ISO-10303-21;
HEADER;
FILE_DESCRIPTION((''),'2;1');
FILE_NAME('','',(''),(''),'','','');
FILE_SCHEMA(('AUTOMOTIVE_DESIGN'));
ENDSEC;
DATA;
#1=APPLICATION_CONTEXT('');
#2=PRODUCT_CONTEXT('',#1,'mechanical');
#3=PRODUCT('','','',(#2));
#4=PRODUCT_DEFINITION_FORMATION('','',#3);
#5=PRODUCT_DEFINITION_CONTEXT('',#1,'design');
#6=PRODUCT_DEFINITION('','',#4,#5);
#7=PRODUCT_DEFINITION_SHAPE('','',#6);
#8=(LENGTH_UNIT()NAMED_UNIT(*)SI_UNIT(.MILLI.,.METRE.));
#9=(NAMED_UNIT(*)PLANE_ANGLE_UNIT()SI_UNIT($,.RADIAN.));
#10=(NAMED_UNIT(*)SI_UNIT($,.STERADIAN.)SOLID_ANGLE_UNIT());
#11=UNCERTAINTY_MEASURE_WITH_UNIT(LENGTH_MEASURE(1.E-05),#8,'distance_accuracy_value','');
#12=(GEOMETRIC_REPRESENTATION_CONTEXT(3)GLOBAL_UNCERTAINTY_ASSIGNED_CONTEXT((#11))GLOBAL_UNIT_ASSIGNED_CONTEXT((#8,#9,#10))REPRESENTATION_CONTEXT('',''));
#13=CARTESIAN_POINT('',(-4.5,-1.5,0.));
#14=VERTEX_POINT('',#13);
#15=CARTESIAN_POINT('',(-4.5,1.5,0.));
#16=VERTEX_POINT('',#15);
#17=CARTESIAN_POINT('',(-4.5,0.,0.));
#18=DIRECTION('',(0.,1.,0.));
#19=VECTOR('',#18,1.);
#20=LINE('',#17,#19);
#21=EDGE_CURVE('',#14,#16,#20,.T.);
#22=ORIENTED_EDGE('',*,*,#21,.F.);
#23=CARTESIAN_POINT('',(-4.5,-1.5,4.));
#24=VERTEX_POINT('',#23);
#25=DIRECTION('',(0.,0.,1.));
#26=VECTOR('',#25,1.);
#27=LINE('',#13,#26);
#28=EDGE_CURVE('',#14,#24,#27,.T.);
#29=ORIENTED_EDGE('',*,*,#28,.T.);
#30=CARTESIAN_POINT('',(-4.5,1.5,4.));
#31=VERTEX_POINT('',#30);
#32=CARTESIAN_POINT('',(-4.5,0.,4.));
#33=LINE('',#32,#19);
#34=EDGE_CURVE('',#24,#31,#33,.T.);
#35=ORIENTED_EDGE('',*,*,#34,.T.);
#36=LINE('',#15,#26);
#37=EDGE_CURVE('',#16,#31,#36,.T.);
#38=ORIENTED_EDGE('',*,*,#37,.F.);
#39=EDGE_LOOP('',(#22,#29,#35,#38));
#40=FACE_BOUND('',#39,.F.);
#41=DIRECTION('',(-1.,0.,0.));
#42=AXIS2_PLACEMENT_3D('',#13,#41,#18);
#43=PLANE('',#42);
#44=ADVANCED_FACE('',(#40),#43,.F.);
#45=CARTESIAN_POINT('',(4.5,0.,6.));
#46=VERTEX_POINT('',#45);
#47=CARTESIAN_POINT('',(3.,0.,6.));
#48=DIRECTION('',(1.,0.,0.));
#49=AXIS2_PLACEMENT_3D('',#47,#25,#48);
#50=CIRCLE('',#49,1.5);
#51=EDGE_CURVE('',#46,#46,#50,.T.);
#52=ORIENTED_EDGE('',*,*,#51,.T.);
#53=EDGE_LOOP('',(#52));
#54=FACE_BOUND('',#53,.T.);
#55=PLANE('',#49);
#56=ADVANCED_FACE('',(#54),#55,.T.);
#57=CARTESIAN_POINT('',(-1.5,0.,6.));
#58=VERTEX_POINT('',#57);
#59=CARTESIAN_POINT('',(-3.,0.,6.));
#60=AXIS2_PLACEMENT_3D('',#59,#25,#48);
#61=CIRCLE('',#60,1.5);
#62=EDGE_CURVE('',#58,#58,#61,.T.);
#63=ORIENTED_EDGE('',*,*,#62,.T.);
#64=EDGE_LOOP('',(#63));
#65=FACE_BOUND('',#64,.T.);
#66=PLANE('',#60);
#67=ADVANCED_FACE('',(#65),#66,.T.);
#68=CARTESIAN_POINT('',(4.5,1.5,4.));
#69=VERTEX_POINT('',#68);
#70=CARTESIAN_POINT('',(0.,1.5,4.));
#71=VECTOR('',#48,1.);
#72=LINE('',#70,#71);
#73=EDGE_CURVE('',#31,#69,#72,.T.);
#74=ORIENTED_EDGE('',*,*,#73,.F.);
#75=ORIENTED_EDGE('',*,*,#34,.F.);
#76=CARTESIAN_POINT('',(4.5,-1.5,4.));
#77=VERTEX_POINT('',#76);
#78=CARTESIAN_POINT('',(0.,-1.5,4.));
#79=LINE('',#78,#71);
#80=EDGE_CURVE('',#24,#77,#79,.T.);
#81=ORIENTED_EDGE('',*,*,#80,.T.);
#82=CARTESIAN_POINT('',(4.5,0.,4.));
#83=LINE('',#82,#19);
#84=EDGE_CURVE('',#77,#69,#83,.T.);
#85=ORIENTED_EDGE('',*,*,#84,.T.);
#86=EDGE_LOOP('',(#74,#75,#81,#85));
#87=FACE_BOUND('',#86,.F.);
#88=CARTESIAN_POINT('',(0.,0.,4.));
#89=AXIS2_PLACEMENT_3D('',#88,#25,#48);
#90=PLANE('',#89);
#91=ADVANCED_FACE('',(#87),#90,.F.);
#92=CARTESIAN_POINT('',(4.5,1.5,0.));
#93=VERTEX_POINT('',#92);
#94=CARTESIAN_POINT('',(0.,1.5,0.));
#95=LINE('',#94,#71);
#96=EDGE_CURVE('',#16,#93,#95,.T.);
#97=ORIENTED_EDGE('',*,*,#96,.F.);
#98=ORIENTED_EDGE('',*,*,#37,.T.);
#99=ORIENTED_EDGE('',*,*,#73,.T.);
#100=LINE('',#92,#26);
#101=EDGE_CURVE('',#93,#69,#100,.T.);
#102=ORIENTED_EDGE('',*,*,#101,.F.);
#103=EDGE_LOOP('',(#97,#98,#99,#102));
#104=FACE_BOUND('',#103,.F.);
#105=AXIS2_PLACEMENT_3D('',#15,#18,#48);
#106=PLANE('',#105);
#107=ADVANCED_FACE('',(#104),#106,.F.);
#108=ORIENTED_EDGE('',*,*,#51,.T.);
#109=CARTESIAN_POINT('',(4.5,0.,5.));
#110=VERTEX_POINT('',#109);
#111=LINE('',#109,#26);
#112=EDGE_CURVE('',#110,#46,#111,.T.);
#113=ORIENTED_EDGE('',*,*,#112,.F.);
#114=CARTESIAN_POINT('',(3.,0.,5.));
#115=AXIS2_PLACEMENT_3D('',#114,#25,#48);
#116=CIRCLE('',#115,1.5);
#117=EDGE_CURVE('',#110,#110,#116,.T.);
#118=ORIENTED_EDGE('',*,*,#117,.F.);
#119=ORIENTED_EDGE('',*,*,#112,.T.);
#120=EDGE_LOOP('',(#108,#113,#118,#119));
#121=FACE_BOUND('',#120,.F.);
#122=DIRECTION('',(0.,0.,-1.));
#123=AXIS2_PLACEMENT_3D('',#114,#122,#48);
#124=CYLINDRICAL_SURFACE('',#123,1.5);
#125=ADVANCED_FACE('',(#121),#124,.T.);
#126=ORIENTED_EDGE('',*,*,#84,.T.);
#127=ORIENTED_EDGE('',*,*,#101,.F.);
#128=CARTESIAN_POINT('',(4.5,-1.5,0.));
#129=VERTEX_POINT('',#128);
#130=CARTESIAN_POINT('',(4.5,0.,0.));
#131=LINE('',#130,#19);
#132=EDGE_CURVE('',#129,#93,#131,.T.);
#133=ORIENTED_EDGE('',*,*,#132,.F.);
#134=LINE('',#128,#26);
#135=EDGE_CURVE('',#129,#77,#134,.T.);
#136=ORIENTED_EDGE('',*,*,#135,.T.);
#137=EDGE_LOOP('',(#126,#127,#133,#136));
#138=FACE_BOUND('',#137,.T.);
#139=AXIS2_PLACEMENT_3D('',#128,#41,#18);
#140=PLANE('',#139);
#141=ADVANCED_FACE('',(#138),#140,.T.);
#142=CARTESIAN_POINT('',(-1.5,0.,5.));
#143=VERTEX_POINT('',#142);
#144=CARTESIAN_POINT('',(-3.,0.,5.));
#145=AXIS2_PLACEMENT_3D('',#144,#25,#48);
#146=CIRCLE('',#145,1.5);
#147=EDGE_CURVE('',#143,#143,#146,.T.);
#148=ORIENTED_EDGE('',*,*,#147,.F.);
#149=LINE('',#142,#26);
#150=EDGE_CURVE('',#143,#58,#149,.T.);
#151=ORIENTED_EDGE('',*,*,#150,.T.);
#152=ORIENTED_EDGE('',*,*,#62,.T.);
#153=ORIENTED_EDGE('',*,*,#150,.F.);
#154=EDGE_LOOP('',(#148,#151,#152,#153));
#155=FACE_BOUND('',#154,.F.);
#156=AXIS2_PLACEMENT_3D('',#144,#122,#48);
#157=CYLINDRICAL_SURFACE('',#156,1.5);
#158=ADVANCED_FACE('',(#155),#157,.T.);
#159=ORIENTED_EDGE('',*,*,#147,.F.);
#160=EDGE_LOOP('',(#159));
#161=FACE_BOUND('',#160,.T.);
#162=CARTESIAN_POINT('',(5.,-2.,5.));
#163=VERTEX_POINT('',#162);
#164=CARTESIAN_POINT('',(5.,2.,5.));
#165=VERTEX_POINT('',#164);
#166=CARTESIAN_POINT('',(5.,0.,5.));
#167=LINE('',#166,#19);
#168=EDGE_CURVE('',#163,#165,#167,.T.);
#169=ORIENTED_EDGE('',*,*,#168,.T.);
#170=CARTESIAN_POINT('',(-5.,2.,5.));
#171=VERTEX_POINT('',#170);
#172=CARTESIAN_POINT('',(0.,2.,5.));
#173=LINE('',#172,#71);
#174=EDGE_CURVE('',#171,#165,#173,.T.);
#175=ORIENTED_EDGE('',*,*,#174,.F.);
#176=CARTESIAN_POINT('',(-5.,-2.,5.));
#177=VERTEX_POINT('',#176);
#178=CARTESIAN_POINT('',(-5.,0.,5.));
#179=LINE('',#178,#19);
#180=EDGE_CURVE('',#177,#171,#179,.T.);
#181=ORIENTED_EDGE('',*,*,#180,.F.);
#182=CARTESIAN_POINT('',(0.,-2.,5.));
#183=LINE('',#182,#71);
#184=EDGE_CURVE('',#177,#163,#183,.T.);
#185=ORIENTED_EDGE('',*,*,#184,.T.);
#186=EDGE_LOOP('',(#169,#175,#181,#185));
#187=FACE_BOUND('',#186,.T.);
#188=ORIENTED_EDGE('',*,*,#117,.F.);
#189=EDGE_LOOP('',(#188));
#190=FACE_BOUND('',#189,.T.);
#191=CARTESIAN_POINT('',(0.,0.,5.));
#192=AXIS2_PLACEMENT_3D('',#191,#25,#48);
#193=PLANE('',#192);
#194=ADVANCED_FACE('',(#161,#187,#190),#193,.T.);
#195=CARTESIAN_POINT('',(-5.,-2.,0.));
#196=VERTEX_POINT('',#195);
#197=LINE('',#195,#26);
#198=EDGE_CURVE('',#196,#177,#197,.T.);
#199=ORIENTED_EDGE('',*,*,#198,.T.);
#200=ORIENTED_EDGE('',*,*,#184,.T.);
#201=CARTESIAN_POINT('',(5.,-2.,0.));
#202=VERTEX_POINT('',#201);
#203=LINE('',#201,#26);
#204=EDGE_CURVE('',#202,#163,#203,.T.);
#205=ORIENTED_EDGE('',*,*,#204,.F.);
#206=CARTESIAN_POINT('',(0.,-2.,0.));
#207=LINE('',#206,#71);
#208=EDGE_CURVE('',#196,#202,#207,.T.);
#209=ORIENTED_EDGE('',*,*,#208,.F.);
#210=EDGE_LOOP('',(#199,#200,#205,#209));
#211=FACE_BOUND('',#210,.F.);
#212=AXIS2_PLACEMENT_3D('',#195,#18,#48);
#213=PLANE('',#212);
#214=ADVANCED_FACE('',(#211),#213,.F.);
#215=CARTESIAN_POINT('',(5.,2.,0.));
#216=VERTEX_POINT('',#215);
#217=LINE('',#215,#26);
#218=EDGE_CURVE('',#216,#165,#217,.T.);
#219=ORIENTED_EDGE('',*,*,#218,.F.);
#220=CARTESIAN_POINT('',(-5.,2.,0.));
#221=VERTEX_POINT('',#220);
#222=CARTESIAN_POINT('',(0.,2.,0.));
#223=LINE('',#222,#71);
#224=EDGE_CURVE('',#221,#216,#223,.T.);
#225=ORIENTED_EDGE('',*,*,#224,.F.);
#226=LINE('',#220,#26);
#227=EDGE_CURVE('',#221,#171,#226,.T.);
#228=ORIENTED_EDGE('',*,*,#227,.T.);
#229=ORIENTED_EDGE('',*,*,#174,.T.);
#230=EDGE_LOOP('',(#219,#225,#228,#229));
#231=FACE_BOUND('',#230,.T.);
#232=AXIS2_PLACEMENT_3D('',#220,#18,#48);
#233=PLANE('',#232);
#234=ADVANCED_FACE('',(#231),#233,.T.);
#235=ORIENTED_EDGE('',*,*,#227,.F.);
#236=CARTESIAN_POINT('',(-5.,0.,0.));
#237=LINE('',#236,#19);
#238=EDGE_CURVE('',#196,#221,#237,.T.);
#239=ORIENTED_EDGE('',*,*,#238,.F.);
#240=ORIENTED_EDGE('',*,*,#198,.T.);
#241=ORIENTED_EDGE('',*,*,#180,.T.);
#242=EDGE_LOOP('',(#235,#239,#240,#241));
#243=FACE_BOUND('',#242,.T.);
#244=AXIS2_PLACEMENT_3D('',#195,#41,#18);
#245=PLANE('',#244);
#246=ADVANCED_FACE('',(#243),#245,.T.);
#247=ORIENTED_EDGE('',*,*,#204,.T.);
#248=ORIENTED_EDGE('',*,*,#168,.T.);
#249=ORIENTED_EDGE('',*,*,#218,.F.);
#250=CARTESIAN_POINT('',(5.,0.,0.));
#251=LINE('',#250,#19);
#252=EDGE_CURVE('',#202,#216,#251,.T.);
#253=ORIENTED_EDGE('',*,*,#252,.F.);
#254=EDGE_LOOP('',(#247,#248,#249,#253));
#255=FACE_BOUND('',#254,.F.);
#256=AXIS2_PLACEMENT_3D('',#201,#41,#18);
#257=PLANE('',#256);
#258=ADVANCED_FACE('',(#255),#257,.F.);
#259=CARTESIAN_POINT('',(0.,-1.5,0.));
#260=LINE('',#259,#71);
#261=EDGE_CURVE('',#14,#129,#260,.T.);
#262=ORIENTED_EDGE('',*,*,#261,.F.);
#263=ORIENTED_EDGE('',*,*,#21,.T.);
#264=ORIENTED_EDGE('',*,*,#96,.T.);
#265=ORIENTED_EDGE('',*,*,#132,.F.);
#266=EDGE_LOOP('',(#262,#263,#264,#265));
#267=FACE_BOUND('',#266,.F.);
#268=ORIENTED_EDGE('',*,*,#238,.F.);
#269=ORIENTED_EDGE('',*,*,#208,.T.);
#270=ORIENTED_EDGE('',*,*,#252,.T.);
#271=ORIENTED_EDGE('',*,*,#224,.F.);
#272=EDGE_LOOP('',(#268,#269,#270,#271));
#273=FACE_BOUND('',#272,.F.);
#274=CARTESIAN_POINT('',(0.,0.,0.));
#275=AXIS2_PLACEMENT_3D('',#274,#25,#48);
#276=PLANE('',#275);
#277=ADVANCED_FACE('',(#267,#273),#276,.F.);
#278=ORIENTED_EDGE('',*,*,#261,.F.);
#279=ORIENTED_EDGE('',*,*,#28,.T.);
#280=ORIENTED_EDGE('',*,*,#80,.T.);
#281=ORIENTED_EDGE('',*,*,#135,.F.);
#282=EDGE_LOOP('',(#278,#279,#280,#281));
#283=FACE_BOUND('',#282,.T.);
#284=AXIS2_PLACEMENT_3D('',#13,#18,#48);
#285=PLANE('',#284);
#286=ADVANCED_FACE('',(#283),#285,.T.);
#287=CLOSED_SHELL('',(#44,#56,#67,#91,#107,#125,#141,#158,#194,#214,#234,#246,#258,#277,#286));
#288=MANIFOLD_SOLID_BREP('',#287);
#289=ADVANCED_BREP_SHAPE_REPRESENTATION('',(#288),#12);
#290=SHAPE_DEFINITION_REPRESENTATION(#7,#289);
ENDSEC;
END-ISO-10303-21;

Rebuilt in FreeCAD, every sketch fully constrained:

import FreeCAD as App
import Part
import Sketcher

V = App.Vector
Q = App.Units.Quantity


def add_polygon(sketch, points):
    """Adds a closed chain of lines whose ends are joined by coincident constraints."""
    first, n = sketch.GeometryCount, len(points)
    for a, b in zip(points, points[1:] + points[:1]):
        sketch.addGeometry(Part.LineSegment(App.Vector(*a, 0), App.Vector(*b, 0)), False)
    for i in range(n):
        sketch.addConstraint(Sketcher.Constraint("Coincident", first + i, 2, first + (i + 1) % n, 1))

doc = App.newDocument("Part")
body = doc.addObject("PartDesign::Body", "Body")

sketch1 = body.newObject("Sketcher::SketchObject", "Sketch")
sketch1.AttachmentSupport = (doc.getObject("XY_Plane"), [""])
sketch1.MapMode = "FlatFace"
add_polygon(sketch1, [(-5, 2), (-5, -2), (5, -2), (5, 2)])
sketch1.addConstraint(Sketcher.Constraint("Vertical", 0))
sketch1.addConstraint(Sketcher.Constraint("Horizontal", 1))
sketch1.addConstraint(Sketcher.Constraint("Vertical", 2))
sketch1.addConstraint(Sketcher.Constraint("Horizontal", 3))
sketch1.addConstraint(Sketcher.Constraint("Symmetric", 0, 2, 2, 2, -1, 1))
sketch1.addConstraint(Sketcher.Constraint("DistanceX", 1, 1, 1, 2, Q("10 mm")))
sketch1.addConstraint(Sketcher.Constraint("DistanceY", 0, 2, 0, 1, Q("4 mm")))
pad1 = body.newObject("PartDesign::Pad", "Pad")
pad1.Profile = sketch1
pad1.Length = 5

sketch2 = body.newObject("Sketcher::SketchObject", "Sketch001")
sketch2.AttachmentSupport = (doc.getObject("XY_Plane"), [""])
sketch2.MapMode = "FlatFace"
sketch2.AttachmentOffset = App.Placement(V(0, 0, 5), App.Rotation())
sketch2.addGeometry(Part.Circle(V(-3, 0, 0), V(0, 0, 1), 1.5), False)
sketch2.addGeometry(Part.Circle(V(3, 0, 0), V(0, 0, 1), 1.5), False)
sketch2.addConstraint(Sketcher.Constraint("Equal", 0, 1))
sketch2.addConstraint(Sketcher.Constraint("Symmetric", 0, 3, 1, 3, -1, 1))
sketch2.addConstraint(Sketcher.Constraint("PointOnObject", 0, 3, -1))
sketch2.addConstraint(Sketcher.Constraint("Diameter", 0, Q("3 mm")))
sketch2.addConstraint(Sketcher.Constraint("DistanceX", 0, 3, -1, 1, Q("3 mm")))
pad2 = body.newObject("PartDesign::Pad", "Pad001")
pad2.Profile = sketch2
pad2.Length = 1

sketch3 = body.newObject("Sketcher::SketchObject", "Sketch002")
sketch3.AttachmentSupport = (doc.getObject("XY_Plane"), [""])
sketch3.MapMode = "FlatFace"
add_polygon(sketch3, [(-4.5, 1.5), (-4.5, -1.5), (4.5, -1.5), (4.5, 1.5)])
sketch3.addConstraint(Sketcher.Constraint("Vertical", 0))
sketch3.addConstraint(Sketcher.Constraint("Horizontal", 1))
sketch3.addConstraint(Sketcher.Constraint("Vertical", 2))
sketch3.addConstraint(Sketcher.Constraint("Horizontal", 3))
sketch3.addConstraint(Sketcher.Constraint("Symmetric", 0, 2, 2, 2, -1, 1))
sketch3.addConstraint(Sketcher.Constraint("DistanceX", 1, 1, 1, 2, Q("9 mm")))
sketch3.addConstraint(Sketcher.Constraint("DistanceY", 0, 2, 0, 1, Q("3 mm")))
pocket1 = body.newObject("PartDesign::Pocket", "Pocket")
pocket1.Profile = sketch3
pocket1.Length = 4
pocket1.Reversed = True

doc.recompute()
